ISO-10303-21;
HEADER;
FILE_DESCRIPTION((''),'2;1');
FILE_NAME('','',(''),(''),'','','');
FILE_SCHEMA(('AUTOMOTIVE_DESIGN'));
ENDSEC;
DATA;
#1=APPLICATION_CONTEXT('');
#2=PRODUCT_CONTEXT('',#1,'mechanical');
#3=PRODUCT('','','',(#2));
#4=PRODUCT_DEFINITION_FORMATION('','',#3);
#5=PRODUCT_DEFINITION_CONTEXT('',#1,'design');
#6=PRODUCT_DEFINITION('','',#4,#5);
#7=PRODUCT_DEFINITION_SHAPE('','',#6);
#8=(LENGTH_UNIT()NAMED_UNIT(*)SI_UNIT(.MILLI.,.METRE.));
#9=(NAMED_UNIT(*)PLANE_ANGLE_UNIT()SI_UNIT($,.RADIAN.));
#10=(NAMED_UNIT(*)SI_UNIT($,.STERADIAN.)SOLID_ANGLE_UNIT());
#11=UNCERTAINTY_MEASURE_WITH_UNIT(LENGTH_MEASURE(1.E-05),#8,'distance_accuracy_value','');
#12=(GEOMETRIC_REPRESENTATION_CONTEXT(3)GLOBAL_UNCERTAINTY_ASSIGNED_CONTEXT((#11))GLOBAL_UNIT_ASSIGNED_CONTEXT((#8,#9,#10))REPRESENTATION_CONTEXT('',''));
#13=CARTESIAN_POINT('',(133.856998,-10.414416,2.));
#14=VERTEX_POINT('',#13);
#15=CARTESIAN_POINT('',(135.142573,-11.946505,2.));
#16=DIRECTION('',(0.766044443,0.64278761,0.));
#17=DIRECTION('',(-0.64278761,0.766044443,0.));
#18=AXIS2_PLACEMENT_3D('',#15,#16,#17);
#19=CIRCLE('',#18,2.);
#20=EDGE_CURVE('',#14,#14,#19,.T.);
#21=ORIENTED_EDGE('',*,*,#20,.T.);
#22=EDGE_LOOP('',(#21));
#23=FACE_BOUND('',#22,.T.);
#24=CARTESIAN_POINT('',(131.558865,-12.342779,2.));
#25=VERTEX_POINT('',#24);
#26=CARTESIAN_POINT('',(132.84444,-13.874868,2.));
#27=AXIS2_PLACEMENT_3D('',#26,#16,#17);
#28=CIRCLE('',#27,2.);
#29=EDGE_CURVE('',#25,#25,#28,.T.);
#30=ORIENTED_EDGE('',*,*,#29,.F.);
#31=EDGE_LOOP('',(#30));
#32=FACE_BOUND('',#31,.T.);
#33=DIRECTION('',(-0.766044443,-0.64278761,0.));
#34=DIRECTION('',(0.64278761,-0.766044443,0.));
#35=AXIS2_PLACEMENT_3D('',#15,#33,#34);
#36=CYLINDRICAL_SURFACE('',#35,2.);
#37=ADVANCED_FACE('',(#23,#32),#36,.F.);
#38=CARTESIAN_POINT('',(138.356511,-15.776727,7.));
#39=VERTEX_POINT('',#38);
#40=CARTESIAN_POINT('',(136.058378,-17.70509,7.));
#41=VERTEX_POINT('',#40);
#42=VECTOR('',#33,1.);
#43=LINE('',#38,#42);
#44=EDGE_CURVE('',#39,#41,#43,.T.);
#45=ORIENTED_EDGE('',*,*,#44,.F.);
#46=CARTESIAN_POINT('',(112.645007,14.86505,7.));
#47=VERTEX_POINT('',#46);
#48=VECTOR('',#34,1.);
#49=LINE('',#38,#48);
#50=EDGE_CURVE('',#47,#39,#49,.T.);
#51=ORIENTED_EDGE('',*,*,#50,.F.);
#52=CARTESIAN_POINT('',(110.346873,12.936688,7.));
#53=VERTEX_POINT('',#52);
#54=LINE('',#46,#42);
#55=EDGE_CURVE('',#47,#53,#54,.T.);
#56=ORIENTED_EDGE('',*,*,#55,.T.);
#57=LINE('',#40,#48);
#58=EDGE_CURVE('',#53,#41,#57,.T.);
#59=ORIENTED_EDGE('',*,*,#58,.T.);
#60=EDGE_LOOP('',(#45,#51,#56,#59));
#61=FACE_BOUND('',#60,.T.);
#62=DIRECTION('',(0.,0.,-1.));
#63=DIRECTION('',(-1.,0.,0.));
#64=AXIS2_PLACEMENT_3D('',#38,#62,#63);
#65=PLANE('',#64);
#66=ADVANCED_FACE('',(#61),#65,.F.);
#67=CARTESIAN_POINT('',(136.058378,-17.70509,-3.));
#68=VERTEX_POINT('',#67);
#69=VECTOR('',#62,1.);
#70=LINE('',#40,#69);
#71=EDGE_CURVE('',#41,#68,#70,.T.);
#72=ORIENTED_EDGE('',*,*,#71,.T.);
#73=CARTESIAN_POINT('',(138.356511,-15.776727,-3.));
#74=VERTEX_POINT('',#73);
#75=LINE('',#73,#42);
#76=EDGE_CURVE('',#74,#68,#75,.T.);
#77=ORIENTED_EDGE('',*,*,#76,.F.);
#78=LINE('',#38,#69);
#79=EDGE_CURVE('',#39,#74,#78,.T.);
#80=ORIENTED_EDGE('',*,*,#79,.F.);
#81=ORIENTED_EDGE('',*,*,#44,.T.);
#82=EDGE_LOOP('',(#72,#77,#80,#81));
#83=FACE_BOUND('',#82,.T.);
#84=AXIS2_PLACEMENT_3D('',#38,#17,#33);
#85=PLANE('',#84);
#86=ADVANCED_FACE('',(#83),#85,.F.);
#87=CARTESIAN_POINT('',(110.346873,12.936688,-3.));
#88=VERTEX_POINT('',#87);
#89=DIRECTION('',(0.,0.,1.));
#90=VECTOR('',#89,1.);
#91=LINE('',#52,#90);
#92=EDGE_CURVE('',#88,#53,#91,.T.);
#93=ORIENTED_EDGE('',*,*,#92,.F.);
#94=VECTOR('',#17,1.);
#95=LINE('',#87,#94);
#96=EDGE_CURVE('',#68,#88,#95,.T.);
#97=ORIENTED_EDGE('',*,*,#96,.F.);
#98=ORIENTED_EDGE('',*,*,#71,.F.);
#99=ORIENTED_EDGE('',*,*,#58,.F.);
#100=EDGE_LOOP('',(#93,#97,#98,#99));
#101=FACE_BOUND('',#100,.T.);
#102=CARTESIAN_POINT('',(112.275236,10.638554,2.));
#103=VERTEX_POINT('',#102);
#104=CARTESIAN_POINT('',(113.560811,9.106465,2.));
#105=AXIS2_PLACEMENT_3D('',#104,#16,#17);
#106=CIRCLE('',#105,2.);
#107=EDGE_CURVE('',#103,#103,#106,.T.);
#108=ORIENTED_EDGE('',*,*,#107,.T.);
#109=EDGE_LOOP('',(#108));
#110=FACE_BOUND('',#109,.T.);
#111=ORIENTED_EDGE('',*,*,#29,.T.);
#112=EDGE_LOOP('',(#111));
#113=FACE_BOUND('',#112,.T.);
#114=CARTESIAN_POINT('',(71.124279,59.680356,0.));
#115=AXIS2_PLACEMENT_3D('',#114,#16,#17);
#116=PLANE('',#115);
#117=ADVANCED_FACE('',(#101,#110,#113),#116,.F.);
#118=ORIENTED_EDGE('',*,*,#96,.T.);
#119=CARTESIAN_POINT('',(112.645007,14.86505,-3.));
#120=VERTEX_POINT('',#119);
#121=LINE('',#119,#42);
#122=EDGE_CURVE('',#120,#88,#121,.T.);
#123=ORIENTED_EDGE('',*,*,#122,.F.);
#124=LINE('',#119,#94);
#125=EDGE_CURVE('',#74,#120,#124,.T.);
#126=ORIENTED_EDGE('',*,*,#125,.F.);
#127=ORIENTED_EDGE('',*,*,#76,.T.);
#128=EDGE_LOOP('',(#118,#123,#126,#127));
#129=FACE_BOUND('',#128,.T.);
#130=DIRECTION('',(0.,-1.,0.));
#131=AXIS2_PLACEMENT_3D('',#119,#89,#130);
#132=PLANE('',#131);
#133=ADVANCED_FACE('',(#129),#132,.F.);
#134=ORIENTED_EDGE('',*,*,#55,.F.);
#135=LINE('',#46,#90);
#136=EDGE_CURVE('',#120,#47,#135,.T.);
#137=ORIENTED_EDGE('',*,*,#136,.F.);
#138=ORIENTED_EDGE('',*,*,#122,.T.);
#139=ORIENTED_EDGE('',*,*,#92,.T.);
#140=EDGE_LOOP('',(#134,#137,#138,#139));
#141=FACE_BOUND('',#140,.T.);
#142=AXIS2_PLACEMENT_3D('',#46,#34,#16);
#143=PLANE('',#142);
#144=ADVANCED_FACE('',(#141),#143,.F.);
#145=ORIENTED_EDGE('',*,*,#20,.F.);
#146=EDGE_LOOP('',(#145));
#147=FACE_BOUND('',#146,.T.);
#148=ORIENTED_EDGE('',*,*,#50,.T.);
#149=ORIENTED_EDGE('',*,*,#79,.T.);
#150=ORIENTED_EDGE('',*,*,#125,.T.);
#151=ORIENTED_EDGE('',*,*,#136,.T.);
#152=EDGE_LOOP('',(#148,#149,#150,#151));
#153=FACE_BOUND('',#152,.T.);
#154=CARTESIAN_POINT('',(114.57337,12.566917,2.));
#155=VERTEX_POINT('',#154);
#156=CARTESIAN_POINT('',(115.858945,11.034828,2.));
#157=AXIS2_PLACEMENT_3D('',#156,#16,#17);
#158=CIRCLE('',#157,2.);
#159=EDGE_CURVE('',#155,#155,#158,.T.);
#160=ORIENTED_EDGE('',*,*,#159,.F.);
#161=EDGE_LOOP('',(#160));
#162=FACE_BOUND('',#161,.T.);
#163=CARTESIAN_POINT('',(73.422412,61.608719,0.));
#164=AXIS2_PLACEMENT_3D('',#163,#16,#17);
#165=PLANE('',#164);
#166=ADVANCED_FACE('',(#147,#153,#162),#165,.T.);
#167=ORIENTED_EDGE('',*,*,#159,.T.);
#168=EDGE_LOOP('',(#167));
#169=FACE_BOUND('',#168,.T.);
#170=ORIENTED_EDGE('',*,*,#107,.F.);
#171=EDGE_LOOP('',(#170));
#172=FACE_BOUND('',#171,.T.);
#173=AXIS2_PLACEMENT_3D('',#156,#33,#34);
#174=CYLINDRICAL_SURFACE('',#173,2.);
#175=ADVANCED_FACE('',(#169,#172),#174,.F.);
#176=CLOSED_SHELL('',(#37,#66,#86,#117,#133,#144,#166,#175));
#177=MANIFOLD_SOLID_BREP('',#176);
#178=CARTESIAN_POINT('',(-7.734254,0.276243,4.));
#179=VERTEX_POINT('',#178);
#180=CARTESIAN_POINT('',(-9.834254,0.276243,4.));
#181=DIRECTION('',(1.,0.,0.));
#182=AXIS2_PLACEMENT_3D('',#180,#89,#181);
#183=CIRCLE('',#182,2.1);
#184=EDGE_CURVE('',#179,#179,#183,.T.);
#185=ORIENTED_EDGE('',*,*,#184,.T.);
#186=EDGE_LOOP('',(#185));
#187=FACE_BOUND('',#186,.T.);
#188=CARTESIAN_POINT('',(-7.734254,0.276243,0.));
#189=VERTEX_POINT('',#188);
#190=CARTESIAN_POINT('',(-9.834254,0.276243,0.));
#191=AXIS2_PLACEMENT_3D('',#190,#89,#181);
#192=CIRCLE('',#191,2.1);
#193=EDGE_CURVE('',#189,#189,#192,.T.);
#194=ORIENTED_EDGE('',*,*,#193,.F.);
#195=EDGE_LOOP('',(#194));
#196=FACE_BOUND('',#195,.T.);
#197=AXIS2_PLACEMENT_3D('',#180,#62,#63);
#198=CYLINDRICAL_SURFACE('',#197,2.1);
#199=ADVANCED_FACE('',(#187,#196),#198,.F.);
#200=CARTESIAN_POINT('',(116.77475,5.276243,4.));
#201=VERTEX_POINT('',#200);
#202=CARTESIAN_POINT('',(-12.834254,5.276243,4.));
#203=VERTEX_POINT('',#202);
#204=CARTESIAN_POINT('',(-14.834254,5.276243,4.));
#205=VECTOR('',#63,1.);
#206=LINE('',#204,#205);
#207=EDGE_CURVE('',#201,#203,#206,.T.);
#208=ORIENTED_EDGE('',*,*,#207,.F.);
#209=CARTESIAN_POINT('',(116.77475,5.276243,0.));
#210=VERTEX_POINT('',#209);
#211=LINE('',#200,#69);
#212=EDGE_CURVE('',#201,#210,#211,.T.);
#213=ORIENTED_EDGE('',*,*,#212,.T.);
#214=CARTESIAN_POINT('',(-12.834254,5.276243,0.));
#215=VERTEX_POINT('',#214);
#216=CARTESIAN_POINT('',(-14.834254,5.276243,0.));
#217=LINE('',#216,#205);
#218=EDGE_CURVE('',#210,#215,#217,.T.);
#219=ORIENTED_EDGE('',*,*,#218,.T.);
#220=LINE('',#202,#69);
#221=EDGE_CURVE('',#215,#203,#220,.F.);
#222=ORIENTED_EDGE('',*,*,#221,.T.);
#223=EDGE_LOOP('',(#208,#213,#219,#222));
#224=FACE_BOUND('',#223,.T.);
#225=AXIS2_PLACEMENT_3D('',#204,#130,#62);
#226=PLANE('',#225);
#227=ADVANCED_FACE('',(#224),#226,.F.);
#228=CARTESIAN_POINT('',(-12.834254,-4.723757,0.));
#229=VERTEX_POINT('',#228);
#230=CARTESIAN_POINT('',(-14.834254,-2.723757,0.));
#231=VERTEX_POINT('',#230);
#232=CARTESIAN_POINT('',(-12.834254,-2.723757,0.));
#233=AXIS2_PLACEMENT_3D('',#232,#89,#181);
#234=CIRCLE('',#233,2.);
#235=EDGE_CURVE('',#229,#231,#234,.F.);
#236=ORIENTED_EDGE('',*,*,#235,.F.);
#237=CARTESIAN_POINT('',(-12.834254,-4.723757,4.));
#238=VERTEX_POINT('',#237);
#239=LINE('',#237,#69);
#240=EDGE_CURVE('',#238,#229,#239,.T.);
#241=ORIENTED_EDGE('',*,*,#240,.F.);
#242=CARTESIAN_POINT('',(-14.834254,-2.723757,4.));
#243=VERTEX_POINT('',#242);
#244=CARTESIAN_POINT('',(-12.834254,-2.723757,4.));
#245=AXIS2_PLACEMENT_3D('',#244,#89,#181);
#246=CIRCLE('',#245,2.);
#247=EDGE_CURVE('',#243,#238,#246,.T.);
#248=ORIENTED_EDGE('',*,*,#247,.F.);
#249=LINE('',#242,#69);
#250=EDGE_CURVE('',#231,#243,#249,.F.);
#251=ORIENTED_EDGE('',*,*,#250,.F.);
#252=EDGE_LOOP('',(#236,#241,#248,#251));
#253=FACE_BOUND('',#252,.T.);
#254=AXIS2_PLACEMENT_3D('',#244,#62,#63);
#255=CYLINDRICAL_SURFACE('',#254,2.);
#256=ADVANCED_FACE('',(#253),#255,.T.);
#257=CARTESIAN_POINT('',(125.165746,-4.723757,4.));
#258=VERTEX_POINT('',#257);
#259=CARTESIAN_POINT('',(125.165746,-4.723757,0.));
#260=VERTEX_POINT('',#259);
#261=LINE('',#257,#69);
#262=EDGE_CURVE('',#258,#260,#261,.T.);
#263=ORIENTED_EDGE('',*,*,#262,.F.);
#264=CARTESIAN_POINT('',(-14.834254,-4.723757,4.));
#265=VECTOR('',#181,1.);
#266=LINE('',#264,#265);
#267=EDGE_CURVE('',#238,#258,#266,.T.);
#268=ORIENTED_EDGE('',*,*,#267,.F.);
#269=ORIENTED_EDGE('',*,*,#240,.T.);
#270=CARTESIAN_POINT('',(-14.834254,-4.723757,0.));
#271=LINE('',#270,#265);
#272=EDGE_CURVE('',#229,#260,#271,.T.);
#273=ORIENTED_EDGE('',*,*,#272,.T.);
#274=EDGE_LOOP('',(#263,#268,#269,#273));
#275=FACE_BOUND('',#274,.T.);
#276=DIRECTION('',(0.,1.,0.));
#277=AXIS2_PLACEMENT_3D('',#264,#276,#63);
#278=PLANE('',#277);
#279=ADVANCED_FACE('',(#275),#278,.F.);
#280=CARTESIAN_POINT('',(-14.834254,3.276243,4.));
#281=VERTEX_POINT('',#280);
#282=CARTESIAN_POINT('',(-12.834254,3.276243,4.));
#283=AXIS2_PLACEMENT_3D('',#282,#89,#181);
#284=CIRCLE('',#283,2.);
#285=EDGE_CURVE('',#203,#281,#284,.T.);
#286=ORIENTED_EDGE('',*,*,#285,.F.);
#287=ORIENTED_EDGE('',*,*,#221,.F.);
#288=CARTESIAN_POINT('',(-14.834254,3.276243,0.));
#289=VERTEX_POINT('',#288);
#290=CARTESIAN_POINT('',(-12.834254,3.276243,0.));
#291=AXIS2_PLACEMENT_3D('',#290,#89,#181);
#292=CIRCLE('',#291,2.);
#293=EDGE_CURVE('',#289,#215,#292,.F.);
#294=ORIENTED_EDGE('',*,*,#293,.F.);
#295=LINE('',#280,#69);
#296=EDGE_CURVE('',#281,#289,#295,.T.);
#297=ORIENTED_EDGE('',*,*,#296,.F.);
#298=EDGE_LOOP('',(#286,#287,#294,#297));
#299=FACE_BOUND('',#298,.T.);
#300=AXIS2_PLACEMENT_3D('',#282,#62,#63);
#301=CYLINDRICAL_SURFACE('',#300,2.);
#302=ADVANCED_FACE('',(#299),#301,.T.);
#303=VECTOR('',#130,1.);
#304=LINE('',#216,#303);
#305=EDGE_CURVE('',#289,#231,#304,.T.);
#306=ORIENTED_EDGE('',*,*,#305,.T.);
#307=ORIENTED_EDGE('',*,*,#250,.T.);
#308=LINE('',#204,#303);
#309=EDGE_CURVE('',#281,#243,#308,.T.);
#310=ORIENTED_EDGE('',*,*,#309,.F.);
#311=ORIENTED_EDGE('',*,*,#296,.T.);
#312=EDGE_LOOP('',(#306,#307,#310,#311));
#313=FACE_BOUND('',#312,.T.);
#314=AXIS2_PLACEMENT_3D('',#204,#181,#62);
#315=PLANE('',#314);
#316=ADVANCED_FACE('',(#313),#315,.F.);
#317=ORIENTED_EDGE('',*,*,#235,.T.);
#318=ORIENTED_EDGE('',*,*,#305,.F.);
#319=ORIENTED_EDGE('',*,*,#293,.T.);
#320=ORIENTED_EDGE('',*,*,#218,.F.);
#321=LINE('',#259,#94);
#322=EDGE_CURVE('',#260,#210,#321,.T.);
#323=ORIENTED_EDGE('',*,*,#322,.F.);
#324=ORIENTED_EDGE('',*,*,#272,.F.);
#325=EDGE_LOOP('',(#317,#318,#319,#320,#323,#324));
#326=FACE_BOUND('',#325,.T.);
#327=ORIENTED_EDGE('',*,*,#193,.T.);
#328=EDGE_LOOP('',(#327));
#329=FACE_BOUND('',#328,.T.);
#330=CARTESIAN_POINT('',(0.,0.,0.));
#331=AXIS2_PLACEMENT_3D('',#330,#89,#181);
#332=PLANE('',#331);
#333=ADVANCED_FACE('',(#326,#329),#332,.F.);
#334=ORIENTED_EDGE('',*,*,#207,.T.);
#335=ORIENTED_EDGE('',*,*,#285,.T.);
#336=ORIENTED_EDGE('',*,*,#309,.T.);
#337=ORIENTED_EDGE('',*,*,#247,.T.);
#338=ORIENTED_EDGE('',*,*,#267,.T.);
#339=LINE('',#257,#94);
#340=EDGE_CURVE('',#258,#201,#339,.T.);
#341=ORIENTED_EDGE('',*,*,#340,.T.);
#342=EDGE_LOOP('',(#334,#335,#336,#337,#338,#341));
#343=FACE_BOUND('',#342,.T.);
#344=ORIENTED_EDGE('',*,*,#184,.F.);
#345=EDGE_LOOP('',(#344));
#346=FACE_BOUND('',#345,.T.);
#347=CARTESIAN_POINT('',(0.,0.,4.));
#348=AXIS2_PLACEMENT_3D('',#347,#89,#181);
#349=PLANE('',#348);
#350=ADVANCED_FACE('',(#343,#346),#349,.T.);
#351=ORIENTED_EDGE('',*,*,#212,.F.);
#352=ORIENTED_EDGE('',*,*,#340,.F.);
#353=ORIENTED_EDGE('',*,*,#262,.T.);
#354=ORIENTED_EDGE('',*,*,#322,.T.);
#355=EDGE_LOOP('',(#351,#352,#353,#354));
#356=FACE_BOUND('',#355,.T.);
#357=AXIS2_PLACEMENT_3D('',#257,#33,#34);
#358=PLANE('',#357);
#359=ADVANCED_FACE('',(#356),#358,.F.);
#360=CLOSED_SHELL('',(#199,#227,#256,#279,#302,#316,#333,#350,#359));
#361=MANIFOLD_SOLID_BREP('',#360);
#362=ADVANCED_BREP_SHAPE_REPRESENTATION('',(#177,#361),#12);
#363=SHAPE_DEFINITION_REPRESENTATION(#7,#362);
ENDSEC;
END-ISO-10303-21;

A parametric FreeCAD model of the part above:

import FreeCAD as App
import Part
import Sketcher

V = App.Vector
Q = App.Units.Quantity


def edges_at(feature, points):
    """Names of the edges that pass closest to the given points."""
    edges = feature.Shape.Edges
    near = lambda p: min(range(len(edges)), key=lambda i: edges[i].distToShape(Part.Vertex(*p))[0])
    return sorted({f"Edge{near(p) + 1}" for p in points})


def add_polygon(sketch, points):
    """Adds a closed chain of lines whose ends are joined by coincident constraints."""
    first, n = sketch.GeometryCount, len(points)
    for a, b in zip(points, points[1:] + points[:1]):
        sketch.addGeometry(Part.LineSegment(App.Vector(*a, 0), App.Vector(*b, 0)), False)
    for i in range(n):
        sketch.addConstraint(Sketcher.Constraint("Coincident", first + i, 2, first + (i + 1) % n, 1))

doc = App.newDocument("Part")
body = doc.addObject("PartDesign::Body", "Body")

# Sketch on XY plane
sketch1 = body.newObject("Sketcher::SketchObject", "Sketch")
sketch1.AttachmentSupport = (doc.getObject("XY_Plane"), [""])
sketch1.MapMode = "FlatFace"
add_polygon(sketch1, [(125.2, -4.7), (116.8, 5.3), (-14.8, 5.3), (-14.8, -4.7)])  # lines 0-3
sketch1.addGeometry(Part.Circle(V(-9.8, 0.3, 0), V(0, 0, 1), 2.1), False)  # 4
sketch1.addConstraint(Sketcher.Constraint("Horizontal", 1))
sketch1.addConstraint(Sketcher.Constraint("Vertical", 2))
sketch1.addConstraint(Sketcher.Constraint("Horizontal", 3))
sketch1.addConstraint(Sketcher.Constraint("Diameter", 4, 4.2))
sketch1.addConstraint(Sketcher.Constraint("DistanceX", 3, 1, 3, 2, 140.0))
sketch1.addConstraint(Sketcher.Constraint("DistanceY", 2, 2, 2, 1, 10.0))
sketch1.addConstraint(Sketcher.Constraint("Angle", 0, Q("130 deg")))
sketch1.addConstraint(Sketcher.Constraint("DistanceY", 4, 3, 0, 2, 5.0))
sketch1.addConstraint(Sketcher.Constraint("DistanceX", 1, 2, 4, 3, 5.0))
sketch1.addConstraint(Sketcher.Constraint("DistanceX", -1, 1, 0, 2, 116.77475))
sketch1.addConstraint(Sketcher.Constraint("DistanceY", -1, 1, 4, 3, 0.276243))
pad1 = body.newObject("PartDesign::Pad", "Pad")
pad1.Profile = sketch1
pad1.Length = 4
doc.recompute()

fillet = body.newObject("PartDesign::Fillet", "Fillet")
fillet.Base = (pad1, edges_at(pad1, [(-14.834, 5.276, 2), (-14.834, -4.724, 2)]))
fillet.Radius = 2
body2 = doc.addObject("PartDesign::Body", "Body001")

# Sketch on an angled plane
sketch2 = body2.newObject("Sketcher::SketchObject", "Sketch001")
sketch2.Placement = App.Placement(V(71.124279, 59.680356, 0), App.Rotation(V(0, 0, -1), V(-0.64278761, 0.766044443, 0), V(0.766044443, 0.64278761, 0), "ZXY"))
add_polygon(sketch2, [(-7, -61), (-7, -101), (3, -101), (3, -61)])  # lines 0-3
sketch2.addGeometry(Part.Circle(V(-2, -96, 0), V(0, 0, 1), 2), False)  # 4
sketch2.addGeometry(Part.Circle(V(-2, -66, 0), V(0, 0, 1), 2), False)  # 5
sketch2.addConstraint(Sketcher.Constraint("Vertical", 0))
sketch2.addConstraint(Sketcher.Constraint("Horizontal", 1))
sketch2.addConstraint(Sketcher.Constraint("Vertical", 2))
sketch2.addConstraint(Sketcher.Constraint("Horizontal", 3))
sketch2.addConstraint(Sketcher.Constraint("Equal", 4, 5))
sketch2.addConstraint(Sketcher.Constraint("Vertical", 4, 3, 5, 3))
sketch2.addConstraint(Sketcher.Constraint("Diameter", 4, 4.0))
sketch2.addConstraint(Sketcher.Constraint("DistanceX", 1, 1, 1, 2, 10.0))
sketch2.addConstraint(Sketcher.Constraint("DistanceY", 0, 2, 0, 1, 40.0))
sketch2.addConstraint(Sketcher.Constraint("DistanceX", 4, 3, -1, 1, 2.0))
sketch2.addConstraint(Sketcher.Constraint("DistanceX", 0, 2, -1, 1, 7.0))
sketch2.addConstraint(Sketcher.Constraint("DistanceY", 4, 3, 5, 3, 30.0))
sketch2.addConstraint(Sketcher.Constraint("DistanceY", 0, 2, 4, 3, 5.0))
sketch2.addConstraint(Sketcher.Constraint("DistanceY", 4, 3, -1, 1, 96.019525))
pad2 = body2.newObject("PartDesign::Pad", "Pad001")
pad2.Profile = sketch2
pad2.Length = 3

doc.recompute()
